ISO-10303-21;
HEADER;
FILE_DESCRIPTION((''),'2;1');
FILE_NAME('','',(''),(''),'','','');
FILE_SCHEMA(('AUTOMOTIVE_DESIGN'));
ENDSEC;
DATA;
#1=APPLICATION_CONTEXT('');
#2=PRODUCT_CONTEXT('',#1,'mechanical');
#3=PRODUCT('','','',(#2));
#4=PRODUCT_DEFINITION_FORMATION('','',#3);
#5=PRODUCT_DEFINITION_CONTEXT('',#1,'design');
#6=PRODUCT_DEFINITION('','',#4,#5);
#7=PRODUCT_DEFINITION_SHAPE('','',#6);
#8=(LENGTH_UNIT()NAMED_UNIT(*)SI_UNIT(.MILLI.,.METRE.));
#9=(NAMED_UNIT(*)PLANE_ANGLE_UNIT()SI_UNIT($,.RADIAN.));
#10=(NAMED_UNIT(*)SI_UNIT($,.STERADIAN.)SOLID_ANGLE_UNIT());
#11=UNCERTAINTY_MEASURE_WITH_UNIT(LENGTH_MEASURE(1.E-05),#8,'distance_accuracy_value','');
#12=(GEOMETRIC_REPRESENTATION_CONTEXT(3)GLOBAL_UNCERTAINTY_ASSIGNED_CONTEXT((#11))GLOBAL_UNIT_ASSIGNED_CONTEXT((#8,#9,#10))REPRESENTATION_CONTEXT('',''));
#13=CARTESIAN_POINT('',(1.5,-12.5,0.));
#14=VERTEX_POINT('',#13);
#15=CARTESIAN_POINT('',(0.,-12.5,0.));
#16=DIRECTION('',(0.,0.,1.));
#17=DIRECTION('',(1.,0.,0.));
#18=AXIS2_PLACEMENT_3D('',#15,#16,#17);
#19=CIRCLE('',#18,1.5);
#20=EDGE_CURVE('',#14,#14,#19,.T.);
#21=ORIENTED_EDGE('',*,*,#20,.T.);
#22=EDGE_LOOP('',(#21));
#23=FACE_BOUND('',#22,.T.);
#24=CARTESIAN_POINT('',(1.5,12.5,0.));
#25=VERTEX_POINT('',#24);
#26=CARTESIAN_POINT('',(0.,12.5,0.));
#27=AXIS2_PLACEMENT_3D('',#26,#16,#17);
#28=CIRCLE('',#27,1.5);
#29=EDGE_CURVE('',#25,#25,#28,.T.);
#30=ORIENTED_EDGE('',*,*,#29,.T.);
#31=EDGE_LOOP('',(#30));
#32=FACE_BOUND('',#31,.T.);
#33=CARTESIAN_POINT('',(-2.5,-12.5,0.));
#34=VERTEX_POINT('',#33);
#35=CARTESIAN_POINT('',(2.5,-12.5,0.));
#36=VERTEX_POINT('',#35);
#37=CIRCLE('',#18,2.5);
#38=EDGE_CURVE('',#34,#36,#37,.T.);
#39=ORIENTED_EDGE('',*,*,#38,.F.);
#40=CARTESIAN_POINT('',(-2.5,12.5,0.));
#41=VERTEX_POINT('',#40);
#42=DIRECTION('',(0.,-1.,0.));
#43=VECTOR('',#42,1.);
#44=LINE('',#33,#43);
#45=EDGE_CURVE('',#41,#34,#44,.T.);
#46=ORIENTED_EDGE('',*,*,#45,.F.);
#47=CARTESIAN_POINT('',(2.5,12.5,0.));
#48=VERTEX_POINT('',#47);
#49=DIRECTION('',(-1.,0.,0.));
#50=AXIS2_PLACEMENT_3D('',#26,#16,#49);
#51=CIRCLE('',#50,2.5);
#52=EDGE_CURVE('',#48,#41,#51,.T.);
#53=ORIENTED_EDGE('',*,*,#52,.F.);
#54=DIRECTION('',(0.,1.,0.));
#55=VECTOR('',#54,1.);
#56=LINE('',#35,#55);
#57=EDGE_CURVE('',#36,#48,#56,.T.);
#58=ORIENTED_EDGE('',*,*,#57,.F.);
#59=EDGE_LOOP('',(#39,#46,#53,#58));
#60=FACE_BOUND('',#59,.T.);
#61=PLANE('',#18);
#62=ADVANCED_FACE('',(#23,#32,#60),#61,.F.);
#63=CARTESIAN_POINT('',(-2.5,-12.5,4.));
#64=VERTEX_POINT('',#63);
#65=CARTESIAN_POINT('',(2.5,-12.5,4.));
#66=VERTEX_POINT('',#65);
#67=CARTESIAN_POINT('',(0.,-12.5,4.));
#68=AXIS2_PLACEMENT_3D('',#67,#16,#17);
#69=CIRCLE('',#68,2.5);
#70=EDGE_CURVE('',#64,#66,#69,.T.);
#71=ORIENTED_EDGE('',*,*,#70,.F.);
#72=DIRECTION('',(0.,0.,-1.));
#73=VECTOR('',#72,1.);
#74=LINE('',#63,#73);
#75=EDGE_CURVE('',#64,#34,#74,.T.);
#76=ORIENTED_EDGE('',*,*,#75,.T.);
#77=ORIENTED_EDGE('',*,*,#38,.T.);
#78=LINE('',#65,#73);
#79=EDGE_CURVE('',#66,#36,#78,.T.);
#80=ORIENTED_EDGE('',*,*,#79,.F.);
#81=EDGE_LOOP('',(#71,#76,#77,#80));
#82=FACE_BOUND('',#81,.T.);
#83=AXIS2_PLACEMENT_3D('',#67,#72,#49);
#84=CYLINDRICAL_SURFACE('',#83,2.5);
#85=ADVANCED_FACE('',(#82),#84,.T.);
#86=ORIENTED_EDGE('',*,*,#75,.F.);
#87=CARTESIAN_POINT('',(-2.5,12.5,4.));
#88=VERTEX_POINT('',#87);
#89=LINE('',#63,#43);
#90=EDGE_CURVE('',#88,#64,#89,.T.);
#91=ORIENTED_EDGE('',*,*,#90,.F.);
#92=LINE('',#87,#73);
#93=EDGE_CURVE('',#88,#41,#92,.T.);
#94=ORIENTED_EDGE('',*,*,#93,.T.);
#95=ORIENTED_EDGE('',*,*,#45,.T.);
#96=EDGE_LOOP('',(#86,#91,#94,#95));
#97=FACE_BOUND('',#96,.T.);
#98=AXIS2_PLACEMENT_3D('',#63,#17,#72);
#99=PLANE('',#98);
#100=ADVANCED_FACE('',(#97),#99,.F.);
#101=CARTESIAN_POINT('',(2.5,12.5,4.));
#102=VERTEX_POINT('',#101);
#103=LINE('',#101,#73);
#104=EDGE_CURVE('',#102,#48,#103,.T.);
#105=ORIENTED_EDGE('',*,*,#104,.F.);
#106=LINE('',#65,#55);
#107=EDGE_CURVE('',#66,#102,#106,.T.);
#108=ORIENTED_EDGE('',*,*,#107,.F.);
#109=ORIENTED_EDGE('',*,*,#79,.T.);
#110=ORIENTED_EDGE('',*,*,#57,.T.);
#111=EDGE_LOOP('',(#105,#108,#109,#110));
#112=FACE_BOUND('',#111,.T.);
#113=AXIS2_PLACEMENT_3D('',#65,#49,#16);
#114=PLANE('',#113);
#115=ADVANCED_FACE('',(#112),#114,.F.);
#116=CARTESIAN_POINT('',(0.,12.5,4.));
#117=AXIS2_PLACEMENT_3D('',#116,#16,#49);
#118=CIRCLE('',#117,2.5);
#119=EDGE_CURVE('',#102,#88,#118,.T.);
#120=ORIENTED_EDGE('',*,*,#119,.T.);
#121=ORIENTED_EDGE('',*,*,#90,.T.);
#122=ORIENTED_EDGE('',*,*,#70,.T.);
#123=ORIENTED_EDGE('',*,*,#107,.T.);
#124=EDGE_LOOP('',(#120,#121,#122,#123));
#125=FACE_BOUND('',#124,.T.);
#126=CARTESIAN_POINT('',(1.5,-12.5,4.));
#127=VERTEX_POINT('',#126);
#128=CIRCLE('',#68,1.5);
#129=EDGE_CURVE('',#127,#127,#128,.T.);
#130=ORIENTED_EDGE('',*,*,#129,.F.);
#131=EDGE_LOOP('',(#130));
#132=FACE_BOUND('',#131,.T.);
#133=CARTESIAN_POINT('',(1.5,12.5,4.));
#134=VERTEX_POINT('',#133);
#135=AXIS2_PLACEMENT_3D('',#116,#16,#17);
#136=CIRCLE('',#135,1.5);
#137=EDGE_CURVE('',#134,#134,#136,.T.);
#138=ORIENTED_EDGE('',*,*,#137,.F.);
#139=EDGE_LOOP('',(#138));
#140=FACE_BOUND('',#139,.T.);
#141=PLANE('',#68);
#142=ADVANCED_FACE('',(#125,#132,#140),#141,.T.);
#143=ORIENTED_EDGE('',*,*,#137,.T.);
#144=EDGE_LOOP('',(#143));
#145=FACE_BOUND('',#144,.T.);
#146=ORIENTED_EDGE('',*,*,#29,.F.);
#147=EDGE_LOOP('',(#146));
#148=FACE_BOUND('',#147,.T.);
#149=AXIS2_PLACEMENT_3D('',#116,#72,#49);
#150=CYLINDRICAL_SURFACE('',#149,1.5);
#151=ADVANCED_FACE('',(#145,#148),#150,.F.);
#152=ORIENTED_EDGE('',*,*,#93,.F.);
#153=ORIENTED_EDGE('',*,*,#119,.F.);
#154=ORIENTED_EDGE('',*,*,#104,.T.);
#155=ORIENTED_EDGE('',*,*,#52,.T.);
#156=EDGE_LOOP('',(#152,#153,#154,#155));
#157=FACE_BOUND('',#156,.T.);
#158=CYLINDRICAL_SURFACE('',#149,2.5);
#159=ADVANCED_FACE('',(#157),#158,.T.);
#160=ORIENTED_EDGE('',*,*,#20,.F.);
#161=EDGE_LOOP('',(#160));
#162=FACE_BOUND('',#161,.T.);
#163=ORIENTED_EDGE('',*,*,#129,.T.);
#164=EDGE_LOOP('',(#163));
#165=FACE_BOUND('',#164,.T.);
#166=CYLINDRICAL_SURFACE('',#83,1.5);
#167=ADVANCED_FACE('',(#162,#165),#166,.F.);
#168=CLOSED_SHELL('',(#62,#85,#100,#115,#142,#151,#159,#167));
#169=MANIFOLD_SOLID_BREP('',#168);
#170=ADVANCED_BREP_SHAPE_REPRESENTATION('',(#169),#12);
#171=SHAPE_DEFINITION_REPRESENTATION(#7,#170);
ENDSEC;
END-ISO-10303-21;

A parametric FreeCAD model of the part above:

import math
import FreeCAD as App
import Part
import Sketcher
from FreeCAD import Vector

doc = App.newDocument("Part")
body = doc.addObject("PartDesign::Body", "Body")

# Sketch on XY plane
sketch1 = body.newObject("Sketcher::SketchObject", "Sketch")
sketch1.AttachmentSupport = (doc.getObject("XY_Plane"), [""])
sketch1.MapMode = "FlatFace"
sketch1.addGeometry([
    Part.LineSegment(Vector(-2.5, 12.5, 0), Vector(-2.5, -12.5, 0)),  # 0
    Part.ArcOfCircle(Part.Circle(Vector(0, -12.5, 0), Vector(0, 0, 1), 2.5), math.radians(180), math.radians(360)),  # 1
    Part.LineSegment(Vector(2.5, -12.5, 0), Vector(2.5, 12.5, 0)),  # 2
    Part.ArcOfCircle(Part.Circle(Vector(0, 12.5, 0), Vector(0, 0, 1), 2.5), math.radians(0), math.radians(180)),  # 3
    Part.Circle(Vector(0, -12.5, 0), Vector(0, 0, 1), 1.5),  # 4
    Part.Circle(Vector(0, 12.5, 0), Vector(0, 0, 1), 1.5),  # 5
], False)
sketch1.addConstraint([
    Sketcher.Constraint("Tangent", 0, 2, 1, 1),
    Sketcher.Constraint("Tangent", 1, 2, 2, 1),
    Sketcher.Constraint("Tangent", 2, 2, 3, 1),
    Sketcher.Constraint("Tangent", 3, 2, 0, 1),
    Sketcher.Constraint("Vertical", 0),
    Sketcher.Constraint("Vertical", 2),
    Sketcher.Constraint("Coincident", 4, 3, 1, 3),
    Sketcher.Constraint("Coincident", 5, 3, 3, 3),
    Sketcher.Constraint("Equal", 4, 5),
    Sketcher.Constraint("Symmetric", 1, 3, 3, 3, -1, 1),
    Sketcher.Constraint("Diameter", 4, 3.0),
    Sketcher.Constraint("Radius", 1, 2.5),
    Sketcher.Constraint("DistanceY", 0, 2, 0, 1, 25.0),
])
pad1 = body.newObject("PartDesign::Pad", "Pad")
pad1.Profile = sketch1
pad1.Length = 4

doc.recompute()
